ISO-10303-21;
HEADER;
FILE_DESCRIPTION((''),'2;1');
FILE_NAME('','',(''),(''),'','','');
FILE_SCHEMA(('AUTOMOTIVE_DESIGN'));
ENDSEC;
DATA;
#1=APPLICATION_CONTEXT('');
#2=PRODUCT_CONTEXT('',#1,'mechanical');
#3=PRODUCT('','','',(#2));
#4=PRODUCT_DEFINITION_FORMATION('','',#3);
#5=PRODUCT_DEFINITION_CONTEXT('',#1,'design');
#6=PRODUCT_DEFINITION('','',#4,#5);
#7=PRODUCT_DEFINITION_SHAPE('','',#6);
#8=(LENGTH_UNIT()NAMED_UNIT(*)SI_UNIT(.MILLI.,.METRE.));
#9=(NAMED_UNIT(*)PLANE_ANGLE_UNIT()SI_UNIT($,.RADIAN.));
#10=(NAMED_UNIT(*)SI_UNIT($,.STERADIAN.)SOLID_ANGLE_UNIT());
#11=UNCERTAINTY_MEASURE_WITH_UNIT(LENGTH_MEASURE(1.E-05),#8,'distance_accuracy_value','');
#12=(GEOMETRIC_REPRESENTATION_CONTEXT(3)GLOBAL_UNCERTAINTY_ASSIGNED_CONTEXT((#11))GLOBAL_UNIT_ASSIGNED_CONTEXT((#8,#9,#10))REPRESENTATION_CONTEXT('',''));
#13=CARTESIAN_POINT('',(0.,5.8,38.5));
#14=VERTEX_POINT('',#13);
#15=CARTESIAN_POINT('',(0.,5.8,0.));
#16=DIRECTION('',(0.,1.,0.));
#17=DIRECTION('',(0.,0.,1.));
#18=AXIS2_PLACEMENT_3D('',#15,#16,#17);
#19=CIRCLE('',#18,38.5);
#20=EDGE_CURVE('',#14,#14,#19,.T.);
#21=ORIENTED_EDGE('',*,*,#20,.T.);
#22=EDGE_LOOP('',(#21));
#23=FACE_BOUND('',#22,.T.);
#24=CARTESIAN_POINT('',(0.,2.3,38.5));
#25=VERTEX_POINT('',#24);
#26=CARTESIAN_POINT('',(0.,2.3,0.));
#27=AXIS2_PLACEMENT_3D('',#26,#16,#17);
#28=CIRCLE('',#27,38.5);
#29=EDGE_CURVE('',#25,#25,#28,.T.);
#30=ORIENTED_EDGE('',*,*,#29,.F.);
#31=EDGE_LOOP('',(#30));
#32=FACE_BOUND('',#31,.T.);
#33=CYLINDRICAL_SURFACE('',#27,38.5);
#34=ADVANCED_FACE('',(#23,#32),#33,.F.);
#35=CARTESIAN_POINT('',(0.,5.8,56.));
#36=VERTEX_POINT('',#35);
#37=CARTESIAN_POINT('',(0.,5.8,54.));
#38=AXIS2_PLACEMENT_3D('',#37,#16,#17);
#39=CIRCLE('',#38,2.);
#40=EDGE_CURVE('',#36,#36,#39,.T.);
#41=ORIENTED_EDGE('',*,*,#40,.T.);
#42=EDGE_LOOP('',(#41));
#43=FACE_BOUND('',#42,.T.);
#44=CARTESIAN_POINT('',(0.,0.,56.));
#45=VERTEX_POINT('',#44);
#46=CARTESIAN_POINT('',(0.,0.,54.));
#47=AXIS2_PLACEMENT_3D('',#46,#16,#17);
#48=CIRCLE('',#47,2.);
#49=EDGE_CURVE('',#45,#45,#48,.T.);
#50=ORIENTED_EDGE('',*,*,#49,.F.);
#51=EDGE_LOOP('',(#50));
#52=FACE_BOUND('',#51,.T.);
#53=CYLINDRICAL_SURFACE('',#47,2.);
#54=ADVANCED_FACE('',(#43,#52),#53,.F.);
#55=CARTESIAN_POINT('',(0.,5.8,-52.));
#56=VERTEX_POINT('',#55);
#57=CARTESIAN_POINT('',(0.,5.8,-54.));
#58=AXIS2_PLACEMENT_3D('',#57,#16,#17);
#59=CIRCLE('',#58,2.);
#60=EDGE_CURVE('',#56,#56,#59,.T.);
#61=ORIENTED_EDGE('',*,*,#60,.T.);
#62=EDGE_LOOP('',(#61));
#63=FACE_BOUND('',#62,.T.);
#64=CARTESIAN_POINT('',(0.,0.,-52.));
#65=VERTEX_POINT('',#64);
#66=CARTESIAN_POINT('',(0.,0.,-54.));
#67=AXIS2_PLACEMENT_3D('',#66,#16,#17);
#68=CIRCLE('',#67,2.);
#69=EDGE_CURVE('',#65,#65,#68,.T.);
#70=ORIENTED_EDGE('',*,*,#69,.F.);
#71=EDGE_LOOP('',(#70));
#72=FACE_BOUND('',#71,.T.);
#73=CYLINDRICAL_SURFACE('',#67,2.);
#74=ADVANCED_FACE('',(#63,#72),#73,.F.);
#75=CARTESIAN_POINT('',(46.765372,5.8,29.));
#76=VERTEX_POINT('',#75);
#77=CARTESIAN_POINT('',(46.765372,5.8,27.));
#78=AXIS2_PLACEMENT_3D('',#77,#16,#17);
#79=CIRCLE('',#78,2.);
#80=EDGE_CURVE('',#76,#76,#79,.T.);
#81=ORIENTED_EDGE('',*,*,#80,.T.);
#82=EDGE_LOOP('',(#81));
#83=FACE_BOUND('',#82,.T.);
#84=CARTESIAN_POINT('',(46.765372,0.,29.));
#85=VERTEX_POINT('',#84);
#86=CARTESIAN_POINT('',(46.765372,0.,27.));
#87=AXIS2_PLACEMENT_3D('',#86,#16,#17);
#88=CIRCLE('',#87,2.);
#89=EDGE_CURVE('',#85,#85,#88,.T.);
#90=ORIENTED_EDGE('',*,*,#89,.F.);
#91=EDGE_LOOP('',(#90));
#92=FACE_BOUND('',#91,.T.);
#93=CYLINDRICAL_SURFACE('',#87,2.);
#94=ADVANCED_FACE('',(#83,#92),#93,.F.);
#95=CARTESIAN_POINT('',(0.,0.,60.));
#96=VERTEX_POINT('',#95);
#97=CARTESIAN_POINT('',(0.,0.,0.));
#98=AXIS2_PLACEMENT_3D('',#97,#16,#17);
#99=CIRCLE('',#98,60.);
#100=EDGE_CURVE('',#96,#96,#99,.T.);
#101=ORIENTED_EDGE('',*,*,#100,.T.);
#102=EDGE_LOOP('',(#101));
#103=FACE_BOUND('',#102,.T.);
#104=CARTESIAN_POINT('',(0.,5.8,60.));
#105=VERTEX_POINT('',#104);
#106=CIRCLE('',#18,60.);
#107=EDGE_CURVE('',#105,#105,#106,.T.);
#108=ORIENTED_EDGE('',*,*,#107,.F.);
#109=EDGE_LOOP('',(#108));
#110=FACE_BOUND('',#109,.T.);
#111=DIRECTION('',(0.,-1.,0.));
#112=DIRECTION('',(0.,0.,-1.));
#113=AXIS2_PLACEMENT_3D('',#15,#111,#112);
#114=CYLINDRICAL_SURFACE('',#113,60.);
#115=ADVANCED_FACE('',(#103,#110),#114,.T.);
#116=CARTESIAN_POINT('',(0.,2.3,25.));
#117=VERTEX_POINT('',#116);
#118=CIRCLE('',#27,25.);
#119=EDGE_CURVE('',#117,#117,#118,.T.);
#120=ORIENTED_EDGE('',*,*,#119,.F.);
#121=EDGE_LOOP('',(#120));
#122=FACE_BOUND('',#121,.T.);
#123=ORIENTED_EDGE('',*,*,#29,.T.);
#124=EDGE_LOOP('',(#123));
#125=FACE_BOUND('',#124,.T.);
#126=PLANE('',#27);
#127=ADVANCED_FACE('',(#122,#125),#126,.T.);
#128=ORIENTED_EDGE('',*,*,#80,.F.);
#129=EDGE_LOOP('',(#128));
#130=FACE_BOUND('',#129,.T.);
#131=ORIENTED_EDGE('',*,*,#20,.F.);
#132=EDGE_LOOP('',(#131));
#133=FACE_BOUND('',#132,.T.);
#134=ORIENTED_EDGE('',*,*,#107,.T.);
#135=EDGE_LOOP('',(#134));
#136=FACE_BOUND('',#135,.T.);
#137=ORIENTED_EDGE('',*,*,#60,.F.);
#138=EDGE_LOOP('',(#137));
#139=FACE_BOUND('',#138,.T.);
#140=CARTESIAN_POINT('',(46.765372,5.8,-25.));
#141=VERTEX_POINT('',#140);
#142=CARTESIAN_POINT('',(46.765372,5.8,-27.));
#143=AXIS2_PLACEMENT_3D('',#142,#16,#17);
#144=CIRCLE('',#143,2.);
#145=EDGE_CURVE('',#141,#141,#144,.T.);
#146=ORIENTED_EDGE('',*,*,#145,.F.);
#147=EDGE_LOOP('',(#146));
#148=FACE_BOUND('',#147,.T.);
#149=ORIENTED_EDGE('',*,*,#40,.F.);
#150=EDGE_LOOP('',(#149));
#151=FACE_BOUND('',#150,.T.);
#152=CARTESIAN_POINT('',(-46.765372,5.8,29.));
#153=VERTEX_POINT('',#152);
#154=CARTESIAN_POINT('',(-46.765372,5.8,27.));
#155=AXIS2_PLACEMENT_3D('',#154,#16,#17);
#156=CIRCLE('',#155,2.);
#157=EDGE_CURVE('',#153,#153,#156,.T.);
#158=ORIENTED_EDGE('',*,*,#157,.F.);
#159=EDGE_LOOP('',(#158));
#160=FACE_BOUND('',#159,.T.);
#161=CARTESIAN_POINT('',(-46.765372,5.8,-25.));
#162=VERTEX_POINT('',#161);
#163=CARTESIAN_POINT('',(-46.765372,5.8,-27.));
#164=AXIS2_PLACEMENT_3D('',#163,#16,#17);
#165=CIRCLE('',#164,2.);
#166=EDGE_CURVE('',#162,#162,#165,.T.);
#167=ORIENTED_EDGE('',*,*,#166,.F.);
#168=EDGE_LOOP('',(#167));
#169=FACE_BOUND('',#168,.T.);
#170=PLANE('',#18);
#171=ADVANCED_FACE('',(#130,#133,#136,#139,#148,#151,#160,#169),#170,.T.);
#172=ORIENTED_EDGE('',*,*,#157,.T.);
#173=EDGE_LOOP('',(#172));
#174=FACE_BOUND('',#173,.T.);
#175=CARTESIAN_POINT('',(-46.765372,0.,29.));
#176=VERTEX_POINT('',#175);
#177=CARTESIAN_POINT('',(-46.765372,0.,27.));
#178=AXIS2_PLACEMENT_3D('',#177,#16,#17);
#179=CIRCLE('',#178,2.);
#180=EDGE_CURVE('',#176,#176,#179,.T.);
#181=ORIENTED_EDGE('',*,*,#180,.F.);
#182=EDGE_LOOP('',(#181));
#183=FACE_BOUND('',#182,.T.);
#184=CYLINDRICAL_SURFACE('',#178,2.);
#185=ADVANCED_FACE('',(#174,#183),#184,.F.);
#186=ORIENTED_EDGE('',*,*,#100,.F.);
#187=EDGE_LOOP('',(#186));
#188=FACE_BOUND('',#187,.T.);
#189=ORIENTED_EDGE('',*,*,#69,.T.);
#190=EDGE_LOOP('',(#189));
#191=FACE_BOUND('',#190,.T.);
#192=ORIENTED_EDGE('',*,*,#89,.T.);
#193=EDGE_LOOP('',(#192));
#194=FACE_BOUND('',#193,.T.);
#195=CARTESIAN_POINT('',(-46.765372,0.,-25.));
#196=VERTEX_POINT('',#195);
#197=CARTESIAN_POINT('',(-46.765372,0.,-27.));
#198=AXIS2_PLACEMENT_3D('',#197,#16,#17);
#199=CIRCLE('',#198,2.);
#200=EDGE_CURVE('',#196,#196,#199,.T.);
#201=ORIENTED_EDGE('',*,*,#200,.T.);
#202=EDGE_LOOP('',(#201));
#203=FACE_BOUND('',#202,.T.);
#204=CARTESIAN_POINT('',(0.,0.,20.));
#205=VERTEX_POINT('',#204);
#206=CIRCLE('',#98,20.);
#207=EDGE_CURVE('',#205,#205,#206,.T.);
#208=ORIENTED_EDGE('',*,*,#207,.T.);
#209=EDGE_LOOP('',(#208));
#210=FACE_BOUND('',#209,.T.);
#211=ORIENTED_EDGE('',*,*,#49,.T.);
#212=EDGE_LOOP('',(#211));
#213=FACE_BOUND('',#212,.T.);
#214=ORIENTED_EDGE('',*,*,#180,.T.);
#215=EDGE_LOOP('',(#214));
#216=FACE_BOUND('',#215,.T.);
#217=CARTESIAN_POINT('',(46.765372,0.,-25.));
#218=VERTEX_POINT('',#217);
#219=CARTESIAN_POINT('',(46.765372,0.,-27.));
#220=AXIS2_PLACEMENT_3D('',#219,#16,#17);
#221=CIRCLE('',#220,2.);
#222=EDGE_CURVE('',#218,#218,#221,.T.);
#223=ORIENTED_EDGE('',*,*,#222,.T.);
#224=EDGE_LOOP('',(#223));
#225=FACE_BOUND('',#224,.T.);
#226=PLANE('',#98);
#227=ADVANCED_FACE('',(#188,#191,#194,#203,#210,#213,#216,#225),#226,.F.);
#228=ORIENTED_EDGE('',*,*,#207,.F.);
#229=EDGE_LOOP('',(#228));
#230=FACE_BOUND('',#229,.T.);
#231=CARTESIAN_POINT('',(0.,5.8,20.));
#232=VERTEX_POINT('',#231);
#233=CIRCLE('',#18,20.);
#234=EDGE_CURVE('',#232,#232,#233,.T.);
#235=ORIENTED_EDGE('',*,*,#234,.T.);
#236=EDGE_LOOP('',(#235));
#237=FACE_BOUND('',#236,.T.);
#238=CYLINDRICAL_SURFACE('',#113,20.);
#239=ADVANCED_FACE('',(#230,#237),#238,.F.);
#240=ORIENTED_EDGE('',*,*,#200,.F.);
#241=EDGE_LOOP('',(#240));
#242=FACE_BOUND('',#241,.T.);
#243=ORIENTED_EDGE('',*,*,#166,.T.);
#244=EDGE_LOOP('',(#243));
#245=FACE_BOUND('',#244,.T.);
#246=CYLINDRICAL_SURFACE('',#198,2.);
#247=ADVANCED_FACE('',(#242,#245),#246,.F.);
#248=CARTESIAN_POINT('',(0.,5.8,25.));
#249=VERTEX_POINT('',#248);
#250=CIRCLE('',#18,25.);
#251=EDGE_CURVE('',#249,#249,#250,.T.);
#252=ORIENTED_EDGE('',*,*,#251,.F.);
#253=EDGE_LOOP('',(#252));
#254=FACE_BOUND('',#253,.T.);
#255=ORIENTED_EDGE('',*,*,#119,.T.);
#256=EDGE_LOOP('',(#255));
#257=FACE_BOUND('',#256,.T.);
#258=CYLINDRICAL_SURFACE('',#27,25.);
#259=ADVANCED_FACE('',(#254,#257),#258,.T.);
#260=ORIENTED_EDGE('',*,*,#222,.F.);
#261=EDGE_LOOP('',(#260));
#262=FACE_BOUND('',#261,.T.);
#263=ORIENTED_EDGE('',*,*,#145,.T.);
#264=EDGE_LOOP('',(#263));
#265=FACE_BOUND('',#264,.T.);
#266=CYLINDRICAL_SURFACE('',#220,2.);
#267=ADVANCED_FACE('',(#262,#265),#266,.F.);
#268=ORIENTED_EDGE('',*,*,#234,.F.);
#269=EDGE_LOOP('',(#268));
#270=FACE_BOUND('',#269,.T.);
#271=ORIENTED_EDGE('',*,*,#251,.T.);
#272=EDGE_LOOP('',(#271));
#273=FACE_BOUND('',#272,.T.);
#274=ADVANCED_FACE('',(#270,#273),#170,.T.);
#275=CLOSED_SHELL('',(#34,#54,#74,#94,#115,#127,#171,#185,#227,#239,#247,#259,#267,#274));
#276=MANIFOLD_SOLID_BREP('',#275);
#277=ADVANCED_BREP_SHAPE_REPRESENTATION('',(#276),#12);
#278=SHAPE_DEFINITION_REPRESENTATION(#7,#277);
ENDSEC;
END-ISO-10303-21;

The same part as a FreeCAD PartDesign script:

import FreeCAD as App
import Part
import Sketcher

V = App.Vector
Q = App.Units.Quantity

doc = App.newDocument("Part")
params = doc.addObject("Spreadsheet::Sheet", "Params")
for row, (alias, value) in enumerate([
    ("sketch1_diameter", "120 mm"),
    ("sketch1_diameter2", "40 mm"),
    ("pad1_length", "5.8 mm"),
    ("sketch2_diameter", "77 mm"),
    ("sketch2_diameter2", "50 mm"),
    ("pocket1_length", "3.5 mm"),
    ("sketch3_diameter", "4 mm"),
], start=1):
    params.set(f"A{row}", alias)
    params.set(f"B{row}", "=" + value)
    params.setAlias(f"B{row}", alias)

body = doc.addObject("PartDesign::Body", "Body")

# Sketch on XZ plane
sketch1 = body.newObject("Sketcher::SketchObject", "Sketch")
sketch1.AttachmentSupport = (doc.getObject("XZ_Plane"), [""])
sketch1.MapMode = "FlatFace"
sketch1.addGeometry(Part.Circle(V(0, 0, 0), V(0, 0, 1), 60), False)
sketch1.addGeometry(Part.Circle(V(0, 0, 0), V(0, 0, 1), 20), False)
sketch1.addConstraint(Sketcher.Constraint("Coincident", 0, 3, -1, 1))
sketch1.addConstraint(Sketcher.Constraint("Coincident", 1, 3, -1, 1))
sketch1.addConstraint(Sketcher.Constraint("Diameter", 0, Q("120 mm")))
sketch1.addConstraint(Sketcher.Constraint("Diameter", 1, Q("40 mm")))
sketch1.setExpression("Constraints[2]", "Params.sketch1_diameter")
sketch1.setExpression("Constraints[3]", "Params.sketch1_diameter2")
pad1 = body.newObject("PartDesign::Pad", "Pad")
pad1.Profile = sketch1
pad1.setExpression("Length", "Params.pad1_length")
pad1.Reversed = True

# Sketch on XZ plane
sketch2 = body.newObject("Sketcher::SketchObject", "Sketch001")
sketch2.AttachmentSupport = (doc.getObject("XZ_Plane"), [""])
sketch2.MapMode = "FlatFace"
sketch2.AttachmentOffset = App.Placement(V(0, 0, -5.8), App.Rotation())
sketch2.addGeometry(Part.Circle(V(0, 0, 0), V(0, 0, 1), 38), False)
sketch2.addGeometry(Part.Circle(V(0, 0, 0), V(0, 0, 1), 25), False)
sketch2.addConstraint(Sketcher.Constraint("Coincident", 0, 3, -1, 1))
sketch2.addConstraint(Sketcher.Constraint("Coincident", 1, 3, -1, 1))
sketch2.addConstraint(Sketcher.Constraint("Diameter", 0, Q("77 mm")))
sketch2.addConstraint(Sketcher.Constraint("Diameter", 1, Q("50 mm")))
sketch2.setExpression("Constraints[2]", "Params.sketch2_diameter")
sketch2.setExpression("Constraints[3]", "Params.sketch2_diameter2")
pocket1 = body.newObject("PartDesign::Pocket", "Pocket")
pocket1.Profile = sketch2
pocket1.setExpression("Length", "Params.pocket1_length")
pocket1.Reversed = True

# Sketch on XZ plane
sketch3 = body.newObject("Sketcher::SketchObject", "Sketch002")
sketch3.AttachmentSupport = (doc.getObject("XZ_Plane"), [""])
sketch3.MapMode = "FlatFace"
sketch3.AttachmentOffset = App.Placement(V(0, 0, -5.8), App.Rotation())
sketch3.addGeometry(Part.Circle(V(0, -54, 0), V(0, 0, 1), 2), False)
sketch3.addGeometry(Part.Circle(V(46.8, -27, 0), V(0, 0, 1), 2), False)
sketch3.addGeometry(Part.Circle(V(46.8, 27, 0), V(0, 0, 1), 2), False)
sketch3.addGeometry(Part.Circle(V(0, 54, 0), V(0, 0, 1), 2), False)
sketch3.addGeometry(Part.Circle(V(-46.8, 27, 0), V(0, 0, 1), 2), False)
sketch3.addGeometry(Part.Circle(V(-46.8, -27, 0), V(0, 0, 1), 2), False)
sketch3.addConstraint(Sketcher.Constraint("Equal", 0, 1))
sketch3.addConstraint(Sketcher.Constraint("Equal", 1, 2))
sketch3.addConstraint(Sketcher.Constraint("Equal", 2, 3))
sketch3.addConstraint(Sketcher.Constraint("Equal", 3, 4))
sketch3.addConstraint(Sketcher.Constraint("Equal", 4, 5))
sketch3.addConstraint(Sketcher.Constraint("Symmetric", 0, 3, 3, 3, -1, 1))
sketch3.addConstraint(Sketcher.Constraint("Symmetric", 1, 3, 4, 3, -1, 1))
sketch3.addConstraint(Sketcher.Constraint("Symmetric", 2, 3, 5, 3, -1, 1))
sketch3.addConstraint(Sketcher.Constraint("Symmetric", 2, 3, 4, 3, -2))
sketch3.addConstraint(Sketcher.Constraint("PointOnObject", 0, 3, -2))
sketch3.addConstraint(Sketcher.Constraint("Diameter", 0, Q("4 mm")))
sketch3.addConstraint(Sketcher.Constraint("DistanceY", 0, 3, -1, 1, Q("54 mm")))
sketch3.addConstraint(Sketcher.Constraint("DistanceY", 1, 3, -1, 1, Q("27 mm")))
sketch3.addConstraint(Sketcher.Constraint("DistanceX", -1, 1, 1, 3, Q("46.765372 mm")))
sketch3.setExpression("Constraints[10]", "Params.sketch3_diameter")
pocket2 = body.newObject("PartDesign::Pocket", "Pocket001")
pocket2.Profile = sketch3
pocket2.Type = "ThroughAll"
pocket2.Reversed = True

doc.recompute()
